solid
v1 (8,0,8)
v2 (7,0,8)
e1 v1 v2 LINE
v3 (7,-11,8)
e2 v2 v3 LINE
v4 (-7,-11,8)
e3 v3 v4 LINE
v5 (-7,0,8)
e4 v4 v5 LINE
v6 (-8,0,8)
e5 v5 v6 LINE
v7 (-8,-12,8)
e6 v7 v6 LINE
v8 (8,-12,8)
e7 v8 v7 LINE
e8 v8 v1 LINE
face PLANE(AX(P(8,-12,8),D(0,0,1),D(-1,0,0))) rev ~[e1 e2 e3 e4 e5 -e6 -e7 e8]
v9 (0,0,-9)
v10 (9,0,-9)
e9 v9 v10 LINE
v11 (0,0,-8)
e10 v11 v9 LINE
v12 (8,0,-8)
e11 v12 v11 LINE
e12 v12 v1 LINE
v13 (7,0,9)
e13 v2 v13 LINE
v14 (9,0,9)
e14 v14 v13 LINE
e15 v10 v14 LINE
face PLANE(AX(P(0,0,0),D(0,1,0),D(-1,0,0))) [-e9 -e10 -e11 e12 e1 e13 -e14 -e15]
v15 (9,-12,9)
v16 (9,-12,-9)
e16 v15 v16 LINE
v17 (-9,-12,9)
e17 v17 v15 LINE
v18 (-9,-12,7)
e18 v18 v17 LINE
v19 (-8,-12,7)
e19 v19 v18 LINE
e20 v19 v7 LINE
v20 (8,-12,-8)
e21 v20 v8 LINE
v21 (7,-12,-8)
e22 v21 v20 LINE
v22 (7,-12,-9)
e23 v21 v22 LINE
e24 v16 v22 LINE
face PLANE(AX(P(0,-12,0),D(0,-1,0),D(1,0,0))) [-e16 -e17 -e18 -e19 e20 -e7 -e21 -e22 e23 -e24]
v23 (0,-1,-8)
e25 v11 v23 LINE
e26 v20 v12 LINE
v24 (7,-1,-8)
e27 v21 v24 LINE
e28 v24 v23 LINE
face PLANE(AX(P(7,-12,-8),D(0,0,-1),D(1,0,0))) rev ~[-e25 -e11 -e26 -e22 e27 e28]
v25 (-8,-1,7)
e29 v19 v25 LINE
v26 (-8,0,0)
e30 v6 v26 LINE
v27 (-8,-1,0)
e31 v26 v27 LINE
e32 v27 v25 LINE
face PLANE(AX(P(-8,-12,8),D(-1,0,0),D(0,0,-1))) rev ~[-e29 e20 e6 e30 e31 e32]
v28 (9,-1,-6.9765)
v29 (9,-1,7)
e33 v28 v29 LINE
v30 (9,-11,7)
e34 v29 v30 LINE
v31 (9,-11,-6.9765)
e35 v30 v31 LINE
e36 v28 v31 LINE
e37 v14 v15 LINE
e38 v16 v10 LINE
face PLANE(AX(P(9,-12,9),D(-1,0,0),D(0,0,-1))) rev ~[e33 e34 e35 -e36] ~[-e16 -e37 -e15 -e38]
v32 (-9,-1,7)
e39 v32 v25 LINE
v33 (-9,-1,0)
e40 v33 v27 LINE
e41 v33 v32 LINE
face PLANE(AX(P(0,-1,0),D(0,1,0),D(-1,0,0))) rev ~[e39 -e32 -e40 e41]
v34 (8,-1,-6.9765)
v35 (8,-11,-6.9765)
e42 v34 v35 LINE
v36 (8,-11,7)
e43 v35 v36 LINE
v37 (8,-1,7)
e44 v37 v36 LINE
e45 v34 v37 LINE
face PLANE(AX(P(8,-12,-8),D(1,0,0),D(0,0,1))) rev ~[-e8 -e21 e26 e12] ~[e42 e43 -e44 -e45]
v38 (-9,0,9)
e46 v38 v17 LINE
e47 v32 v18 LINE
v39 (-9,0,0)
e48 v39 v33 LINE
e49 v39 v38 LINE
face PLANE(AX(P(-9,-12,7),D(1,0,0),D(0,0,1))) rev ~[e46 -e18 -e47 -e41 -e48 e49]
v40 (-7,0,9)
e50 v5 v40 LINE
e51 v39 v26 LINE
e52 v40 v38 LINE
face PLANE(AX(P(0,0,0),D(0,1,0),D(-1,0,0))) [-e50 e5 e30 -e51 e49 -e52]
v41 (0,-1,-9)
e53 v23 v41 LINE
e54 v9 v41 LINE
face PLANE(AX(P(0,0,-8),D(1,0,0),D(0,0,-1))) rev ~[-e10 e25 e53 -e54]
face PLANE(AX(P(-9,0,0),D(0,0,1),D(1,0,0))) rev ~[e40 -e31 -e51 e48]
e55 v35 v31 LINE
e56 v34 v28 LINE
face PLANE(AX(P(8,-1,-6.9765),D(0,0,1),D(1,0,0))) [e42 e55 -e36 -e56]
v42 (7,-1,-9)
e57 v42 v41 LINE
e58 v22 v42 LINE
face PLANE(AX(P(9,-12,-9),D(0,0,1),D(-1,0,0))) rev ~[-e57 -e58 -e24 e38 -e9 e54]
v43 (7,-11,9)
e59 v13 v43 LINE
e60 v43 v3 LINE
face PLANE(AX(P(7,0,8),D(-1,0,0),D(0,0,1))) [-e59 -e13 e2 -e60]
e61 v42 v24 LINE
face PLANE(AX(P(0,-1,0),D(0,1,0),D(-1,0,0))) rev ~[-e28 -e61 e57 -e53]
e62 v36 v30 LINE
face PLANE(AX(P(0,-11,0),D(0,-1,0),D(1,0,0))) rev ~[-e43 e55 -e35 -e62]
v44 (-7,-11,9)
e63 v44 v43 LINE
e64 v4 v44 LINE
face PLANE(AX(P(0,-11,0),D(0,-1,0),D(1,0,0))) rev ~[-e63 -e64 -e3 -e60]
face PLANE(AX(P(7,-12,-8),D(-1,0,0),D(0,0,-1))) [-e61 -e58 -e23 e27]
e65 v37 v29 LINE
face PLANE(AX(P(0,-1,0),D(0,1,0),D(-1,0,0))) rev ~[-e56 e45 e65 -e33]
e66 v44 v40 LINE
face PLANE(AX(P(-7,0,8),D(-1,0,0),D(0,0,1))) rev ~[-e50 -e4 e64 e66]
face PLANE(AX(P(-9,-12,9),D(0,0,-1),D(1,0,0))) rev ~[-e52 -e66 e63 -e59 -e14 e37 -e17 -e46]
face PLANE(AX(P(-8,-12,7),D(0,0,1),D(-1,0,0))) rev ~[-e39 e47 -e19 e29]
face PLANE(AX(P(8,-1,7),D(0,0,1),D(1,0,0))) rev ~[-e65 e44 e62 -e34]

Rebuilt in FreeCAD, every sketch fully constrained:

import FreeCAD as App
import Part
import Sketcher

doc = App.newDocument("Part")
params = doc.addObject("Spreadsheet::Sheet", "Params")
for row, (alias, value) in enumerate([
    ("sketch1_width", "1 mm"),
    ("sketch1_height", "18 mm"),
    ("pad1_length", "1 mm"),
    ("sketch2_width", "2 mm"),
    ("pad2_length", "10 mm"),
    ("sketch3_width", "18 mm"),
    ("sketch3_width2", "1 mm"),
    ("pad3_length", "1 mm"),
], start=1):
    params.set(f"A{row}", alias)
    params.set(f"B{row}", "=" + value)
    params.setAlias(f"B{row}", alias)

body = doc.addObject("PartDesign::Body", "Body")
body.AllowCompound = True

# Sketch on XZ plane
sketch1 = doc.addObject("Sketcher::SketchObject", "Sketch")
body.addObject(sketch1)
sketch1.AttachmentSupport = (doc.XZ_Plane, [""])
sketch1.MapMode = "FlatFace"
sketch1.addGeometry([
    Part.LineSegment(App.Vector(9, 9, 0), App.Vector(9, -9, 0)),  # 0
    Part.LineSegment(App.Vector(9, -9, 0), App.Vector(0, -9, 0)),  # 1
    Part.LineSegment(App.Vector(0, -9, 0), App.Vector(0, -8, 0)),  # 2
    Part.LineSegment(App.Vector(0, -8, 0), App.Vector(8, -8, 0)),  # 3
    Part.LineSegment(App.Vector(8, -8, 0), App.Vector(8, 8, 0)),  # 4
    Part.LineSegment(App.Vector(8, 8, 0), App.Vector(7, 8, 0)),  # 5
    Part.LineSegment(App.Vector(7, 8, 0), App.Vector(7, 9, 0)),  # 6
    Part.LineSegment(App.Vector(7, 9, 0), App.Vector(9, 9, 0)),  # 7
    Part.LineSegment(App.Vector(-7, 9, 0), App.Vector(-7, 8, 0)),  # 8
    Part.LineSegment(App.Vector(-7, 8, 0), App.Vector(-8, 8, 0)),  # 9
    Part.LineSegment(App.Vector(-8, 8, 0), App.Vector(-8, 0, 0)),  # 10
    Part.LineSegment(App.Vector(-8, 0, 0), App.Vector(-9, 0, 0)),  # 11
    Part.LineSegment(App.Vector(-9, 0, 0), App.Vector(-9, 9, 0)),  # 12
    Part.LineSegment(App.Vector(-9, 9, 0), App.Vector(-7, 9, 0)),  # 13
], False)
sketch1.addConstraint([
    Sketcher.Constraint("Coincident", 0, 2, 1, 1),
    Sketcher.Constraint("Coincident", 1, 2, 2, 1),
    Sketcher.Constraint("Coincident", 2, 2, 3, 1),
    Sketcher.Constraint("Coincident", 3, 2, 4, 1),
    Sketcher.Constraint("Coincident", 4, 2, 5, 1),
    Sketcher.Constraint("Coincident", 5, 2, 6, 1),
    Sketcher.Constraint("Coincident", 6, 2, 7, 1),
    Sketcher.Constraint("Coincident", 7, 2, 0, 1),
    Sketcher.Constraint("Coincident", 8, 2, 9, 1),
    Sketcher.Constraint("Coincident", 9, 2, 10, 1),
    Sketcher.Constraint("Coincident", 10, 2, 11, 1),
    Sketcher.Constraint("Coincident", 11, 2, 12, 1),
    Sketcher.Constraint("Coincident", 12, 2, 13, 1),
    Sketcher.Constraint("Coincident", 13, 2, 8, 1),
    Sketcher.Constraint("Vertical", 0),
    Sketcher.Constraint("Horizontal", 1),
    Sketcher.Constraint("Vertical", 2),
    Sketcher.Constraint("Horizontal", 3),
    Sketcher.Constraint("Vertical", 4),
    Sketcher.Constraint("Horizontal", 5),
    Sketcher.Constraint("Vertical", 6),
    Sketcher.Constraint("Horizontal", 7),
    Sketcher.Constraint("Vertical", 8),
    Sketcher.Constraint("Horizontal", 9),
    Sketcher.Constraint("Vertical", 10),
    Sketcher.Constraint("Horizontal", 11),
    Sketcher.Constraint("Vertical", 12),
    Sketcher.Constraint("Horizontal", 13),
    Sketcher.Constraint("Symmetric", 3, 2, 9, 2, -1, 1),
    Sketcher.Constraint("Symmetric", 0, 2, 12, 2, -1, 1),
    Sketcher.Constraint("Symmetric", 5, 2, 8, 2, -2),
    Sketcher.Constraint("PointOnObject", 1, 2, -2),
    Sketcher.Constraint("PointOnObject", 10, 2, -1),
    Sketcher.Constraint("Horizontal", 7, 2, 12, 2),
    Sketcher.Constraint("Equal", 9, 11),
    Sketcher.Constraint("Equal", 11, 2),
    Sketcher.Constraint("Equal", 3, 10),
    Sketcher.Constraint("DistanceX", 5, 2, 5, 1, 1.0),
    Sketcher.Constraint("DistanceY", 0, 2, 0, 1, 18.0),
])
sketch1.setExpression("Constraints[37]", "Params.sketch1_width")
sketch1.setExpression("Constraints[38]", "Params.sketch1_height")
pad1 = doc.addObject("PartDesign::Pad", "Pad")
body.addObject(pad1)
pad1.Profile = sketch1
pad1.setExpression("Length", "Params.pad1_length")

# Sketch on XZ plane
sketch2 = doc.addObject("Sketcher::SketchObject", "Sketch001")
body.addObject(sketch2)
sketch2.AttachmentSupport = (doc.XZ_Plane, [""])
sketch2.MapMode = "FlatFace"
sketch2.AttachmentOffset = App.Placement(App.Vector(0, 0, 1), App.Rotation())
sketch2.addGeometry([
    Part.LineSegment(App.Vector(9, 7, 0), App.Vector(9, 9, 0)),  # 0
    Part.LineSegment(App.Vector(9, 9, 0), App.Vector(7, 9, 0)),  # 1
    Part.LineSegment(App.Vector(7, 9, 0), App.Vector(7, 8, 0)),  # 2
    Part.LineSegment(App.Vector(7, 8, 0), App.Vector(8, 8, 0)),  # 3
    Part.LineSegment(App.Vector(8, 8, 0), App.Vector(8, 7, 0)),  # 4
    Part.LineSegment(App.Vector(8, 7, 0), App.Vector(9, 7, 0)),  # 5
    Part.LineSegment(App.Vector(-7, 8, 0), App.Vector(-7, 9, 0)),  # 6
    Part.LineSegment(App.Vector(-7, 9, 0), App.Vector(-9, 9, 0)),  # 7
    Part.LineSegment(App.Vector(-9, 9, 0), App.Vector(-9, 7, 0)),  # 8
    Part.LineSegment(App.Vector(-9, 7, 0), App.Vector(-8, 7, 0)),  # 9
    Part.LineSegment(App.Vector(-8, 7, 0), App.Vector(-8, 8, 0)),  # 10
    Part.LineSegment(App.Vector(-8, 8, 0), App.Vector(-7, 8, 0)),  # 11
    Part.LineSegment(App.Vector(9, -9, 0), App.Vector(9, -7, 0)),  # 12
    Part.LineSegment(App.Vector(9, -7, 0), App.Vector(8, -7, 0)),  # 13
    Part.LineSegment(App.Vector(8, -7, 0), App.Vector(8, -8, 0)),  # 14
    Part.LineSegment(App.Vector(8, -8, 0), App.Vector(7, -8, 0)),  # 15
    Part.LineSegment(App.Vector(7, -8, 0), App.Vector(7, -9, 0)),  # 16
    Part.LineSegment(App.Vector(7, -9, 0), App.Vector(9, -9, 0)),  # 17
], False)
sketch2.addConstraint([
    Sketcher.Constraint("Coincident", 0, 2, 1, 1),
    Sketcher.Constraint("Coincident", 1, 2, 2, 1),
    Sketcher.Constraint("Coincident", 2, 2, 3, 1),
    Sketcher.Constraint("Coincident", 3, 2, 4, 1),
    Sketcher.Constraint("Coincident", 4, 2, 5, 1),
    Sketcher.Constraint("Coincident", 5, 2, 0, 1),
    Sketcher.Constraint("Coincident", 6, 2, 7, 1),
    Sketcher.Constraint("Coincident", 7, 2, 8, 1),
    Sketcher.Constraint("Coincident", 8, 2, 9, 1),
    Sketcher.Constraint("Coincident", 9, 2, 10, 1),
    Sketcher.Constraint("Coincident", 10, 2, 11, 1),
    Sketcher.Constraint("Coincident", 11, 2, 6, 1),
    Sketcher.Constraint("Coincident", 12, 2, 13, 1),
    Sketcher.Constraint("Coincident", 13, 2, 14, 1),
    Sketcher.Constraint("Coincident", 14, 2, 15, 1),
    Sketcher.Constraint("Coincident", 15, 2, 16, 1),
    Sketcher.Constraint("Coincident", 16, 2, 17, 1),
    Sketcher.Constraint("Coincident", 17, 2, 12, 1),
    Sketcher.Constraint("Vertical", 0),
    Sketcher.Constraint("Horizontal", 1),
    Sketcher.Constraint("Vertical", 2),
    Sketcher.Constraint("Horizontal", 3),
    Sketcher.Constraint("Vertical", 4),
    Sketcher.Constraint("Horizontal", 5),
    Sketcher.Constraint("Vertical", 6),
    Sketcher.Constraint("Horizontal", 7),
    Sketcher.Constraint("Vertical", 8),
    Sketcher.Constraint("Horizontal", 9),
    Sketcher.Constraint("Vertical", 10),
    Sketcher.Constraint("Horizontal", 11),
    Sketcher.Constraint("Vertical", 12),
    Sketcher.Constraint("Horizontal", 13),
    Sketcher.Constraint("Vertical", 14),
    Sketcher.Constraint("Horizontal", 15),
    Sketcher.Constraint("Vertical", 16),
    Sketcher.Constraint("Horizontal", 17),
    Sketcher.Constraint("Symmetric", 10, 2, 14, 2, -1, 1),
    Sketcher.Constraint("Symmetric", 6, 2, 16, 2, -1, 1),
    Sketcher.Constraint("Symmetric", 1, 2, 6, 2, -2),
    Sketcher.Constraint("Symmetric", 5, 2, 8, 2, -2),
    Sketcher.Constraint("Symmetric", 3, 2, 10, 2, -2),
    Sketcher.Constraint("Vertical", 5, 2, 12, 2),
    Sketcher.Constraint("Equal", 3, 5),
    Sketcher.Constraint("Equal", 17, 0),
    Sketcher.Constraint("Equal", 15, 2),
    Sketcher.Constraint("DistanceX", 1, 2, 1, 1, 2.0),
    Sketcher.Constraint("DistanceX", -1, 1, 0, 2, 9.0),
    Sketcher.Constraint("DistanceY", -1, 1, 0, 2, 9.0),
    Sketcher.Constraint("DistanceY", 12, 1, 12, 2, 2.0235),
])
sketch2.setExpression("Constraints[45]", "Params.sketch2_width")
pad2 = doc.addObject("PartDesign::Pad", "Pad001")
body.addObject(pad2)
pad2.Profile = sketch2
pad2.setExpression("Length", "Params.pad2_length")

# Sketch on XZ plane
sketch3 = doc.addObject("Sketcher::SketchObject", "Sketch002")
body.addObject(sketch3)
sketch3.AttachmentSupport = (doc.XZ_Plane, [""])
sketch3.MapMode = "FlatFace"
sketch3.AttachmentOffset = App.Placement(App.Vector(0, 0, 12), App.Rotation())
sketch3.addGeometry([
    Part.LineSegment(App.Vector(9, -9, 0), App.Vector(9, 9, 0)),  # 0
    Part.LineSegment(App.Vector(9, 9, 0), App.Vector(-9, 9, 0)),  # 1
    Part.LineSegment(App.Vector(-9, 9, 0), App.Vector(-9, 7, 0)),  # 2
    Part.LineSegment(App.Vector(-9, 7, 0), App.Vector(-8, 7, 0)),  # 3
    Part.LineSegment(App.Vector(-8, 7, 0), App.Vector(-8, 8, 0)),  # 4
    Part.LineSegment(App.Vector(-8, 8, 0), App.Vector(8, 8, 0)),  # 5
    Part.LineSegment(App.Vector(8, 8, 0), App.Vector(8, -8, 0)),  # 6
    Part.LineSegment(App.Vector(8, -8, 0), App.Vector(7, -8, 0)),  # 7
    Part.LineSegment(App.Vector(7, -8, 0), App.Vector(7, -9, 0)),  # 8
    Part.LineSegment(App.Vector(7, -9, 0), App.Vector(9, -9, 0)),  # 9
], False)
sketch3.addConstraint([
    Sketcher.Constraint("Coincident", 0, 2, 1, 1),
    Sketcher.Constraint("Coincident", 1, 2, 2, 1),
    Sketcher.Constraint("Coincident", 2, 2, 3, 1),
    Sketcher.Constraint("Coincident", 3, 2, 4, 1),
    Sketcher.Constraint("Coincident", 4, 2, 5, 1),
    Sketcher.Constraint("Coincident", 5, 2, 6, 1),
    Sketcher.Constraint("Coincident", 6, 2, 7, 1),
    Sketcher.Constraint("Coincident", 7, 2, 8, 1),
    Sketcher.Constraint("Coincident", 8, 2, 9, 1),
    Sketcher.Constraint("Coincident", 9, 2, 0, 1),
    Sketcher.Constraint("Vertical", 0),
    Sketcher.Constraint("Horizontal", 1),
    Sketcher.Constraint("Vertical", 2),
    Sketcher.Constraint("Horizontal", 3),
    Sketcher.Constraint("Vertical", 4),
    Sketcher.Constraint("Horizontal", 5),
    Sketcher.Constraint("Vertical", 6),
    Sketcher.Constraint("Horizontal", 7),
    Sketcher.Constraint("Vertical", 8),
    Sketcher.Constraint("Horizontal", 9),
    Sketcher.Constraint("Symmetric", 4, 2, 6, 2, -1, 1),
    Sketcher.Constraint("Symmetric", 1, 2, 9, 2, -1, 1),
    Sketcher.Constraint("Equal", 3, 7),
    Sketcher.Constraint("Equal", 1, 0),
    Sketcher.Constraint("Equal", 9, 2),
    Sketcher.Constraint("Equal", 7, 4),
    Sketcher.Constraint("DistanceX", 1, 2, 1, 1, 18.0),
    Sketcher.Constraint("DistanceX", 3, 1, 3, 2, 1.0),
])
sketch3.setExpression("Constraints[26]", "Params.sketch3_width")
sketch3.setExpression("Constraints[27]", "Params.sketch3_width2")
pad3 = doc.addObject("PartDesign::Pad", "Pad002")
body.addObject(pad3)
pad3.Profile = sketch3
pad3.setExpression("Length", "Params.pad3_length")
pad3.Reversed = True

doc.recompute()
